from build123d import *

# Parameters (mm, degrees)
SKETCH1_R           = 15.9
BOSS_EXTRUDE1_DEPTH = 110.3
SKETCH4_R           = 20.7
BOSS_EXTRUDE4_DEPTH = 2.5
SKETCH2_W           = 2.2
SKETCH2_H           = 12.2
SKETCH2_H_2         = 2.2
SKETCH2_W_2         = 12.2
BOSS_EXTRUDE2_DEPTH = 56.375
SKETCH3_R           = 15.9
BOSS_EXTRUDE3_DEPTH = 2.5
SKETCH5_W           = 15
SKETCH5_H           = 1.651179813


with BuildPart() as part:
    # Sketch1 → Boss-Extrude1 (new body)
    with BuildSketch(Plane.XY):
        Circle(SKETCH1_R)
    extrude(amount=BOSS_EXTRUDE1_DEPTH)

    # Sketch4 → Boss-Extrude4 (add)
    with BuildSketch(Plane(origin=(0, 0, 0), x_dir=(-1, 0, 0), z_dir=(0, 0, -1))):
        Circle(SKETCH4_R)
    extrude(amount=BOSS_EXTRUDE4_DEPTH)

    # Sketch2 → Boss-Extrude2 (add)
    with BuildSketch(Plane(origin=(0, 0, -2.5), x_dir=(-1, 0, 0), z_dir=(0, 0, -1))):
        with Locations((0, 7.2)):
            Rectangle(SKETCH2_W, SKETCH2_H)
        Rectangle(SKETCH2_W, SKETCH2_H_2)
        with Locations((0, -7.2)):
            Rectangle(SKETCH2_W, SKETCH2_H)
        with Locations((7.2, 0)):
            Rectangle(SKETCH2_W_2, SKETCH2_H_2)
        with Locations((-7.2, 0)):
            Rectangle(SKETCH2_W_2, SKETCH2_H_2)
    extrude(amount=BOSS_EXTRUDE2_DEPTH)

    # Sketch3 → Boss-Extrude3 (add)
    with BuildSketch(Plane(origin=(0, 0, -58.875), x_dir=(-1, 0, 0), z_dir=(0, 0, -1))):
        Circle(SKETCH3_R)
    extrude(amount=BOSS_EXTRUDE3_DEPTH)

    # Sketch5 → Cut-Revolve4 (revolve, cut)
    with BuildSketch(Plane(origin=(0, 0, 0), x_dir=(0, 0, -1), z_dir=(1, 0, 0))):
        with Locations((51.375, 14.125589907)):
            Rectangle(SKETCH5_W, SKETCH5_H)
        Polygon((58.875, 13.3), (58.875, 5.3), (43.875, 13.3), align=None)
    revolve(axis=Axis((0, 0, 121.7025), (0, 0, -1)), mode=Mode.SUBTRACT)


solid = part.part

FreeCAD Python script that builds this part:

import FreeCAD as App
import Part
import Sketcher

V = App.Vector

doc = App.newDocument("Part")
params = doc.addObject("Spreadsheet::Sheet", "Params")
for row, (alias, value) in enumerate([
    ("sketch1_diameter", "31.8 mm"),
    ("pad1_length", "110.3 mm"),
    ("sketch2_diameter", "41.4 mm"),
    ("pad2_length", "2.5 mm"),
    ("sketch3_width", "12.2 mm"),
    ("sketch3_width2", "2.2 mm"),
    ("pad3_length", "56.375 mm"),
    ("sketch4_diameter", "31.8 mm"),
    ("pad4_length", "2.5 mm"),
    ("sketch5_height", "15 mm"),
    ("sketch5_length", "17 mm"),
    ("groove_angle", "360 deg"),
], start=1):
    params.set(f"A{row}", alias)
    params.set(f"B{row}", "=" + value)
    params.setAlias(f"B{row}", alias)

body = doc.addObject("PartDesign::Body", "Body")

# Sketch on XY plane
sketch1 = doc.addObject("Sketcher::SketchObject", "Sketch")
body.addObject(sketch1)
sketch1.AttachmentSupport = (doc.XY_Plane, [""])
sketch1.MapMode = "FlatFace"
sketch1.addGeometry(Part.Circle(V(0, 0, 0), V(0, 0, 1), 16), False)
sketch1.addConstraint([
    Sketcher.Constraint("Coincident", 0, 3, -1, 1),
    Sketcher.Constraint("Diameter", 0, 31.8),
])
sketch1.setExpression("Constraints[1]", "Params.sketch1_diameter")
pad1 = doc.addObject("PartDesign::Pad", "Pad")
body.addObject(pad1)
pad1.Profile = sketch1
pad1.setExpression("Length", "Params.pad1_length")

# Sketch on XY plane
sketch2 = doc.addObject("Sketcher::SketchObject", "Sketch001")
body.addObject(sketch2)
sketch2.AttachmentSupport = (doc.XY_Plane, [""])
sketch2.MapMode = "FlatFace"
sketch2.addGeometry(Part.Circle(V(0, 0, 0), V(0, 0, 1), 21), False)
sketch2.addConstraint([
    Sketcher.Constraint("Coincident", 0, 3, -1, 1),
    Sketcher.Constraint("Diameter", 0, 41.4),
])
sketch2.setExpression("Constraints[1]", "Params.sketch2_diameter")
pad2 = doc.addObject("PartDesign::Pad", "Pad001")
body.addObject(pad2)
pad2.Profile = sketch2
pad2.setExpression("Length", "Params.pad2_length")
pad2.Reversed = True

# Sketch on XY plane
sketch3 = doc.addObject("Sketcher::SketchObject", "Sketch002")
body.addObject(sketch3)
sketch3.AttachmentSupport = (doc.XY_Plane, [""])
sketch3.MapMode = "FlatFace"
sketch3.AttachmentOffset = App.Placement(V(0, 0, -2.5), App.Rotation())
sketch3.addGeometry([
    Part.LineSegment(V(1.1, 13.3, 0), V(1.1, 1.1, 0)),  # 0
    Part.LineSegment(V(1.1, 1.1, 0), V(13.3, 1.1, 0)),  # 1
    Part.LineSegment(V(13.3, 1.1, 0), V(13.3, -1.1, 0)),  # 2
    Part.LineSegment(V(13.3, -1.1, 0), V(1.1, -1.1, 0)),  # 3
    Part.LineSegment(V(1.1, -1.1, 0), V(1.1, -13.3, 0)),  # 4
    Part.LineSegment(V(1.1, -13.3, 0), V(-1.1, -13.3, 0)),  # 5
    Part.LineSegment(V(-1.1, -13.3, 0), V(-1.1, -1.1, 0)),  # 6
    Part.LineSegment(V(-1.1, -1.1, 0), V(-13.3, -1.1, 0)),  # 7
    Part.LineSegment(V(-13.3, -1.1, 0), V(-13.3, 1.1, 0)),  # 8
    Part.LineSegment(V(-13.3, 1.1, 0), V(-1.1, 1.1, 0)),  # 9
    Part.LineSegment(V(-1.1, 1.1, 0), V(-1.1, 13.3, 0)),  # 10
    Part.LineSegment(V(-1.1, 13.3, 0), V(1.1, 13.3, 0)),  # 11
], False)
sketch3.addConstraint([
    Sketcher.Constraint("Coincident", 0, 2, 1, 1),
    Sketcher.Constraint("Coincident", 1, 2, 2, 1),
    Sketcher.Constraint("Coincident", 2, 2, 3, 1),
    Sketcher.Constraint("Coincident", 3, 2, 4, 1),
    Sketcher.Constraint("Coincident", 4, 2, 5, 1),
    Sketcher.Constraint("Coincident", 5, 2, 6, 1),
    Sketcher.Constraint("Coincident", 6, 2, 7, 1),
    Sketcher.Constraint("Coincident", 7, 2, 8, 1),
    Sketcher.Constraint("Coincident", 8, 2, 9, 1),
    Sketcher.Constraint("Coincident", 9, 2, 10, 1),
    Sketcher.Constraint("Coincident", 10, 2, 11, 1),
    Sketcher.Constraint("Coincident", 11, 2, 0, 1),
    Sketcher.Constraint("Vertical", 0),
    Sketcher.Constraint("Horizontal", 1),
    Sketcher.Constraint("Vertical", 2),
    Sketcher.Constraint("Horizontal", 3),
    Sketcher.Constraint("Vertical", 4),
    Sketcher.Constraint("Horizontal", 5),
    Sketcher.Constraint("Vertical", 6),
    Sketcher.Constraint("Horizontal", 7),
    Sketcher.Constraint("Vertical", 8),
    Sketcher.Constraint("Horizontal", 9),
    Sketcher.Constraint("Vertical", 10),
    Sketcher.Constraint("Horizontal", 11),
    Sketcher.Constraint("Symmetric", 0, 2, 6, 2, -1, 1),
    Sketcher.Constraint("Symmetric", 2, 2, 8, 2, -1, 1),
    Sketcher.Constraint("Symmetric", 4, 2, 10, 2, -1, 1),
    Sketcher.Constraint("Symmetric", 3, 2, 6, 2, -2),
    Sketcher.Constraint("Equal", 9, 0),
    Sketcher.Constraint("Equal", 11, 2),
    Sketcher.Constraint("DistanceX", 1, 1, 1, 2, 12.2),
    Sketcher.Constraint("DistanceX", 5, 2, 5, 1, 2.2),
])
sketch3.setExpression("Constraints[30]", "Params.sketch3_width")
sketch3.setExpression("Constraints[31]", "Params.sketch3_width2")
pad3 = doc.addObject("PartDesign::Pad", "Pad002")
body.addObject(pad3)
pad3.Profile = sketch3
pad3.setExpression("Length", "Params.pad3_length")
pad3.Reversed = True

# Sketch on XY plane
sketch4 = doc.addObject("Sketcher::SketchObject", "Sketch003")
body.addObject(sketch4)
sketch4.AttachmentSupport = (doc.XY_Plane, [""])
sketch4.MapMode = "FlatFace"
sketch4.AttachmentOffset = App.Placement(V(0, 0, -58.875), App.Rotation())
sketch4.addGeometry(Part.Circle(V(0, 0, 0), V(0, 0, 1), 16), False)
sketch4.addConstraint([
    Sketcher.Constraint("Coincident", 0, 3, -1, 1),
    Sketcher.Constraint("Diameter", 0, 31.8),
])
sketch4.setExpression("Constraints[1]", "Params.sketch4_diameter")
pad4 = doc.addObject("PartDesign::Pad", "Pad003")
body.addObject(pad4)
pad4.Profile = sketch4
pad4.setExpression("Length", "Params.pad4_length")
pad4.Reversed = True

# Sketch on YZ plane
sketch5 = doc.addObject("Sketcher::SketchObject", "Sketch004")
body.addObject(sketch5)
sketch5.AttachmentSupport = (doc.YZ_Plane, [""])
sketch5.MapMode = "FlatFace"
sketch5.addGeometry([
    Part.LineSegment(V(15, -43.9, 0), V(13.3, -43.9, 0)),
    Part.LineSegment(V(13.3, -43.9, 0), V(5.3, -58.9, 0)),
    Part.LineSegment(V(5.3, -58.9, 0), V(15, -58.9, 0)),
    Part.LineSegment(V(15, -58.9, 0), V(15, -43.9, 0)),
], False)
sketch5.addConstraint([
    Sketcher.Constraint("Coincident", 0, 2, 1, 1),
    Sketcher.Constraint("Coincident", 1, 2, 2, 1),
    Sketcher.Constraint("Coincident", 2, 2, 3, 1),
    Sketcher.Constraint("Coincident", 3, 2, 0, 1),
    Sketcher.Constraint("Horizontal", 0),
    Sketcher.Constraint("Horizontal", 2),
    Sketcher.Constraint("Vertical", 3),
    Sketcher.Constraint("DistanceY", 3, 1, 3, 2, 15.0),
    Sketcher.Constraint("Distance", 1, 17.0),
    Sketcher.Constraint("DistanceX", -1, 1, 0, 2, 13.3),
    Sketcher.Constraint("DistanceY", 0, 2, -1, 1, 43.875),
    Sketcher.Constraint("DistanceX", 0, 2, 0, 1, 1.65118),
])
sketch5.setExpression("Constraints[7]", "Params.sketch5_height")
sketch5.setExpression("Constraints[8]", "Params.sketch5_length")
groove = doc.addObject("PartDesign::Groove", "Groove")
body.addObject(groove)
groove.Profile = sketch5
groove.ReferenceAxis = (sketch5, ["V_Axis"])
groove.setExpression("Angle", "Params.groove_angle")

doc.recompute()
